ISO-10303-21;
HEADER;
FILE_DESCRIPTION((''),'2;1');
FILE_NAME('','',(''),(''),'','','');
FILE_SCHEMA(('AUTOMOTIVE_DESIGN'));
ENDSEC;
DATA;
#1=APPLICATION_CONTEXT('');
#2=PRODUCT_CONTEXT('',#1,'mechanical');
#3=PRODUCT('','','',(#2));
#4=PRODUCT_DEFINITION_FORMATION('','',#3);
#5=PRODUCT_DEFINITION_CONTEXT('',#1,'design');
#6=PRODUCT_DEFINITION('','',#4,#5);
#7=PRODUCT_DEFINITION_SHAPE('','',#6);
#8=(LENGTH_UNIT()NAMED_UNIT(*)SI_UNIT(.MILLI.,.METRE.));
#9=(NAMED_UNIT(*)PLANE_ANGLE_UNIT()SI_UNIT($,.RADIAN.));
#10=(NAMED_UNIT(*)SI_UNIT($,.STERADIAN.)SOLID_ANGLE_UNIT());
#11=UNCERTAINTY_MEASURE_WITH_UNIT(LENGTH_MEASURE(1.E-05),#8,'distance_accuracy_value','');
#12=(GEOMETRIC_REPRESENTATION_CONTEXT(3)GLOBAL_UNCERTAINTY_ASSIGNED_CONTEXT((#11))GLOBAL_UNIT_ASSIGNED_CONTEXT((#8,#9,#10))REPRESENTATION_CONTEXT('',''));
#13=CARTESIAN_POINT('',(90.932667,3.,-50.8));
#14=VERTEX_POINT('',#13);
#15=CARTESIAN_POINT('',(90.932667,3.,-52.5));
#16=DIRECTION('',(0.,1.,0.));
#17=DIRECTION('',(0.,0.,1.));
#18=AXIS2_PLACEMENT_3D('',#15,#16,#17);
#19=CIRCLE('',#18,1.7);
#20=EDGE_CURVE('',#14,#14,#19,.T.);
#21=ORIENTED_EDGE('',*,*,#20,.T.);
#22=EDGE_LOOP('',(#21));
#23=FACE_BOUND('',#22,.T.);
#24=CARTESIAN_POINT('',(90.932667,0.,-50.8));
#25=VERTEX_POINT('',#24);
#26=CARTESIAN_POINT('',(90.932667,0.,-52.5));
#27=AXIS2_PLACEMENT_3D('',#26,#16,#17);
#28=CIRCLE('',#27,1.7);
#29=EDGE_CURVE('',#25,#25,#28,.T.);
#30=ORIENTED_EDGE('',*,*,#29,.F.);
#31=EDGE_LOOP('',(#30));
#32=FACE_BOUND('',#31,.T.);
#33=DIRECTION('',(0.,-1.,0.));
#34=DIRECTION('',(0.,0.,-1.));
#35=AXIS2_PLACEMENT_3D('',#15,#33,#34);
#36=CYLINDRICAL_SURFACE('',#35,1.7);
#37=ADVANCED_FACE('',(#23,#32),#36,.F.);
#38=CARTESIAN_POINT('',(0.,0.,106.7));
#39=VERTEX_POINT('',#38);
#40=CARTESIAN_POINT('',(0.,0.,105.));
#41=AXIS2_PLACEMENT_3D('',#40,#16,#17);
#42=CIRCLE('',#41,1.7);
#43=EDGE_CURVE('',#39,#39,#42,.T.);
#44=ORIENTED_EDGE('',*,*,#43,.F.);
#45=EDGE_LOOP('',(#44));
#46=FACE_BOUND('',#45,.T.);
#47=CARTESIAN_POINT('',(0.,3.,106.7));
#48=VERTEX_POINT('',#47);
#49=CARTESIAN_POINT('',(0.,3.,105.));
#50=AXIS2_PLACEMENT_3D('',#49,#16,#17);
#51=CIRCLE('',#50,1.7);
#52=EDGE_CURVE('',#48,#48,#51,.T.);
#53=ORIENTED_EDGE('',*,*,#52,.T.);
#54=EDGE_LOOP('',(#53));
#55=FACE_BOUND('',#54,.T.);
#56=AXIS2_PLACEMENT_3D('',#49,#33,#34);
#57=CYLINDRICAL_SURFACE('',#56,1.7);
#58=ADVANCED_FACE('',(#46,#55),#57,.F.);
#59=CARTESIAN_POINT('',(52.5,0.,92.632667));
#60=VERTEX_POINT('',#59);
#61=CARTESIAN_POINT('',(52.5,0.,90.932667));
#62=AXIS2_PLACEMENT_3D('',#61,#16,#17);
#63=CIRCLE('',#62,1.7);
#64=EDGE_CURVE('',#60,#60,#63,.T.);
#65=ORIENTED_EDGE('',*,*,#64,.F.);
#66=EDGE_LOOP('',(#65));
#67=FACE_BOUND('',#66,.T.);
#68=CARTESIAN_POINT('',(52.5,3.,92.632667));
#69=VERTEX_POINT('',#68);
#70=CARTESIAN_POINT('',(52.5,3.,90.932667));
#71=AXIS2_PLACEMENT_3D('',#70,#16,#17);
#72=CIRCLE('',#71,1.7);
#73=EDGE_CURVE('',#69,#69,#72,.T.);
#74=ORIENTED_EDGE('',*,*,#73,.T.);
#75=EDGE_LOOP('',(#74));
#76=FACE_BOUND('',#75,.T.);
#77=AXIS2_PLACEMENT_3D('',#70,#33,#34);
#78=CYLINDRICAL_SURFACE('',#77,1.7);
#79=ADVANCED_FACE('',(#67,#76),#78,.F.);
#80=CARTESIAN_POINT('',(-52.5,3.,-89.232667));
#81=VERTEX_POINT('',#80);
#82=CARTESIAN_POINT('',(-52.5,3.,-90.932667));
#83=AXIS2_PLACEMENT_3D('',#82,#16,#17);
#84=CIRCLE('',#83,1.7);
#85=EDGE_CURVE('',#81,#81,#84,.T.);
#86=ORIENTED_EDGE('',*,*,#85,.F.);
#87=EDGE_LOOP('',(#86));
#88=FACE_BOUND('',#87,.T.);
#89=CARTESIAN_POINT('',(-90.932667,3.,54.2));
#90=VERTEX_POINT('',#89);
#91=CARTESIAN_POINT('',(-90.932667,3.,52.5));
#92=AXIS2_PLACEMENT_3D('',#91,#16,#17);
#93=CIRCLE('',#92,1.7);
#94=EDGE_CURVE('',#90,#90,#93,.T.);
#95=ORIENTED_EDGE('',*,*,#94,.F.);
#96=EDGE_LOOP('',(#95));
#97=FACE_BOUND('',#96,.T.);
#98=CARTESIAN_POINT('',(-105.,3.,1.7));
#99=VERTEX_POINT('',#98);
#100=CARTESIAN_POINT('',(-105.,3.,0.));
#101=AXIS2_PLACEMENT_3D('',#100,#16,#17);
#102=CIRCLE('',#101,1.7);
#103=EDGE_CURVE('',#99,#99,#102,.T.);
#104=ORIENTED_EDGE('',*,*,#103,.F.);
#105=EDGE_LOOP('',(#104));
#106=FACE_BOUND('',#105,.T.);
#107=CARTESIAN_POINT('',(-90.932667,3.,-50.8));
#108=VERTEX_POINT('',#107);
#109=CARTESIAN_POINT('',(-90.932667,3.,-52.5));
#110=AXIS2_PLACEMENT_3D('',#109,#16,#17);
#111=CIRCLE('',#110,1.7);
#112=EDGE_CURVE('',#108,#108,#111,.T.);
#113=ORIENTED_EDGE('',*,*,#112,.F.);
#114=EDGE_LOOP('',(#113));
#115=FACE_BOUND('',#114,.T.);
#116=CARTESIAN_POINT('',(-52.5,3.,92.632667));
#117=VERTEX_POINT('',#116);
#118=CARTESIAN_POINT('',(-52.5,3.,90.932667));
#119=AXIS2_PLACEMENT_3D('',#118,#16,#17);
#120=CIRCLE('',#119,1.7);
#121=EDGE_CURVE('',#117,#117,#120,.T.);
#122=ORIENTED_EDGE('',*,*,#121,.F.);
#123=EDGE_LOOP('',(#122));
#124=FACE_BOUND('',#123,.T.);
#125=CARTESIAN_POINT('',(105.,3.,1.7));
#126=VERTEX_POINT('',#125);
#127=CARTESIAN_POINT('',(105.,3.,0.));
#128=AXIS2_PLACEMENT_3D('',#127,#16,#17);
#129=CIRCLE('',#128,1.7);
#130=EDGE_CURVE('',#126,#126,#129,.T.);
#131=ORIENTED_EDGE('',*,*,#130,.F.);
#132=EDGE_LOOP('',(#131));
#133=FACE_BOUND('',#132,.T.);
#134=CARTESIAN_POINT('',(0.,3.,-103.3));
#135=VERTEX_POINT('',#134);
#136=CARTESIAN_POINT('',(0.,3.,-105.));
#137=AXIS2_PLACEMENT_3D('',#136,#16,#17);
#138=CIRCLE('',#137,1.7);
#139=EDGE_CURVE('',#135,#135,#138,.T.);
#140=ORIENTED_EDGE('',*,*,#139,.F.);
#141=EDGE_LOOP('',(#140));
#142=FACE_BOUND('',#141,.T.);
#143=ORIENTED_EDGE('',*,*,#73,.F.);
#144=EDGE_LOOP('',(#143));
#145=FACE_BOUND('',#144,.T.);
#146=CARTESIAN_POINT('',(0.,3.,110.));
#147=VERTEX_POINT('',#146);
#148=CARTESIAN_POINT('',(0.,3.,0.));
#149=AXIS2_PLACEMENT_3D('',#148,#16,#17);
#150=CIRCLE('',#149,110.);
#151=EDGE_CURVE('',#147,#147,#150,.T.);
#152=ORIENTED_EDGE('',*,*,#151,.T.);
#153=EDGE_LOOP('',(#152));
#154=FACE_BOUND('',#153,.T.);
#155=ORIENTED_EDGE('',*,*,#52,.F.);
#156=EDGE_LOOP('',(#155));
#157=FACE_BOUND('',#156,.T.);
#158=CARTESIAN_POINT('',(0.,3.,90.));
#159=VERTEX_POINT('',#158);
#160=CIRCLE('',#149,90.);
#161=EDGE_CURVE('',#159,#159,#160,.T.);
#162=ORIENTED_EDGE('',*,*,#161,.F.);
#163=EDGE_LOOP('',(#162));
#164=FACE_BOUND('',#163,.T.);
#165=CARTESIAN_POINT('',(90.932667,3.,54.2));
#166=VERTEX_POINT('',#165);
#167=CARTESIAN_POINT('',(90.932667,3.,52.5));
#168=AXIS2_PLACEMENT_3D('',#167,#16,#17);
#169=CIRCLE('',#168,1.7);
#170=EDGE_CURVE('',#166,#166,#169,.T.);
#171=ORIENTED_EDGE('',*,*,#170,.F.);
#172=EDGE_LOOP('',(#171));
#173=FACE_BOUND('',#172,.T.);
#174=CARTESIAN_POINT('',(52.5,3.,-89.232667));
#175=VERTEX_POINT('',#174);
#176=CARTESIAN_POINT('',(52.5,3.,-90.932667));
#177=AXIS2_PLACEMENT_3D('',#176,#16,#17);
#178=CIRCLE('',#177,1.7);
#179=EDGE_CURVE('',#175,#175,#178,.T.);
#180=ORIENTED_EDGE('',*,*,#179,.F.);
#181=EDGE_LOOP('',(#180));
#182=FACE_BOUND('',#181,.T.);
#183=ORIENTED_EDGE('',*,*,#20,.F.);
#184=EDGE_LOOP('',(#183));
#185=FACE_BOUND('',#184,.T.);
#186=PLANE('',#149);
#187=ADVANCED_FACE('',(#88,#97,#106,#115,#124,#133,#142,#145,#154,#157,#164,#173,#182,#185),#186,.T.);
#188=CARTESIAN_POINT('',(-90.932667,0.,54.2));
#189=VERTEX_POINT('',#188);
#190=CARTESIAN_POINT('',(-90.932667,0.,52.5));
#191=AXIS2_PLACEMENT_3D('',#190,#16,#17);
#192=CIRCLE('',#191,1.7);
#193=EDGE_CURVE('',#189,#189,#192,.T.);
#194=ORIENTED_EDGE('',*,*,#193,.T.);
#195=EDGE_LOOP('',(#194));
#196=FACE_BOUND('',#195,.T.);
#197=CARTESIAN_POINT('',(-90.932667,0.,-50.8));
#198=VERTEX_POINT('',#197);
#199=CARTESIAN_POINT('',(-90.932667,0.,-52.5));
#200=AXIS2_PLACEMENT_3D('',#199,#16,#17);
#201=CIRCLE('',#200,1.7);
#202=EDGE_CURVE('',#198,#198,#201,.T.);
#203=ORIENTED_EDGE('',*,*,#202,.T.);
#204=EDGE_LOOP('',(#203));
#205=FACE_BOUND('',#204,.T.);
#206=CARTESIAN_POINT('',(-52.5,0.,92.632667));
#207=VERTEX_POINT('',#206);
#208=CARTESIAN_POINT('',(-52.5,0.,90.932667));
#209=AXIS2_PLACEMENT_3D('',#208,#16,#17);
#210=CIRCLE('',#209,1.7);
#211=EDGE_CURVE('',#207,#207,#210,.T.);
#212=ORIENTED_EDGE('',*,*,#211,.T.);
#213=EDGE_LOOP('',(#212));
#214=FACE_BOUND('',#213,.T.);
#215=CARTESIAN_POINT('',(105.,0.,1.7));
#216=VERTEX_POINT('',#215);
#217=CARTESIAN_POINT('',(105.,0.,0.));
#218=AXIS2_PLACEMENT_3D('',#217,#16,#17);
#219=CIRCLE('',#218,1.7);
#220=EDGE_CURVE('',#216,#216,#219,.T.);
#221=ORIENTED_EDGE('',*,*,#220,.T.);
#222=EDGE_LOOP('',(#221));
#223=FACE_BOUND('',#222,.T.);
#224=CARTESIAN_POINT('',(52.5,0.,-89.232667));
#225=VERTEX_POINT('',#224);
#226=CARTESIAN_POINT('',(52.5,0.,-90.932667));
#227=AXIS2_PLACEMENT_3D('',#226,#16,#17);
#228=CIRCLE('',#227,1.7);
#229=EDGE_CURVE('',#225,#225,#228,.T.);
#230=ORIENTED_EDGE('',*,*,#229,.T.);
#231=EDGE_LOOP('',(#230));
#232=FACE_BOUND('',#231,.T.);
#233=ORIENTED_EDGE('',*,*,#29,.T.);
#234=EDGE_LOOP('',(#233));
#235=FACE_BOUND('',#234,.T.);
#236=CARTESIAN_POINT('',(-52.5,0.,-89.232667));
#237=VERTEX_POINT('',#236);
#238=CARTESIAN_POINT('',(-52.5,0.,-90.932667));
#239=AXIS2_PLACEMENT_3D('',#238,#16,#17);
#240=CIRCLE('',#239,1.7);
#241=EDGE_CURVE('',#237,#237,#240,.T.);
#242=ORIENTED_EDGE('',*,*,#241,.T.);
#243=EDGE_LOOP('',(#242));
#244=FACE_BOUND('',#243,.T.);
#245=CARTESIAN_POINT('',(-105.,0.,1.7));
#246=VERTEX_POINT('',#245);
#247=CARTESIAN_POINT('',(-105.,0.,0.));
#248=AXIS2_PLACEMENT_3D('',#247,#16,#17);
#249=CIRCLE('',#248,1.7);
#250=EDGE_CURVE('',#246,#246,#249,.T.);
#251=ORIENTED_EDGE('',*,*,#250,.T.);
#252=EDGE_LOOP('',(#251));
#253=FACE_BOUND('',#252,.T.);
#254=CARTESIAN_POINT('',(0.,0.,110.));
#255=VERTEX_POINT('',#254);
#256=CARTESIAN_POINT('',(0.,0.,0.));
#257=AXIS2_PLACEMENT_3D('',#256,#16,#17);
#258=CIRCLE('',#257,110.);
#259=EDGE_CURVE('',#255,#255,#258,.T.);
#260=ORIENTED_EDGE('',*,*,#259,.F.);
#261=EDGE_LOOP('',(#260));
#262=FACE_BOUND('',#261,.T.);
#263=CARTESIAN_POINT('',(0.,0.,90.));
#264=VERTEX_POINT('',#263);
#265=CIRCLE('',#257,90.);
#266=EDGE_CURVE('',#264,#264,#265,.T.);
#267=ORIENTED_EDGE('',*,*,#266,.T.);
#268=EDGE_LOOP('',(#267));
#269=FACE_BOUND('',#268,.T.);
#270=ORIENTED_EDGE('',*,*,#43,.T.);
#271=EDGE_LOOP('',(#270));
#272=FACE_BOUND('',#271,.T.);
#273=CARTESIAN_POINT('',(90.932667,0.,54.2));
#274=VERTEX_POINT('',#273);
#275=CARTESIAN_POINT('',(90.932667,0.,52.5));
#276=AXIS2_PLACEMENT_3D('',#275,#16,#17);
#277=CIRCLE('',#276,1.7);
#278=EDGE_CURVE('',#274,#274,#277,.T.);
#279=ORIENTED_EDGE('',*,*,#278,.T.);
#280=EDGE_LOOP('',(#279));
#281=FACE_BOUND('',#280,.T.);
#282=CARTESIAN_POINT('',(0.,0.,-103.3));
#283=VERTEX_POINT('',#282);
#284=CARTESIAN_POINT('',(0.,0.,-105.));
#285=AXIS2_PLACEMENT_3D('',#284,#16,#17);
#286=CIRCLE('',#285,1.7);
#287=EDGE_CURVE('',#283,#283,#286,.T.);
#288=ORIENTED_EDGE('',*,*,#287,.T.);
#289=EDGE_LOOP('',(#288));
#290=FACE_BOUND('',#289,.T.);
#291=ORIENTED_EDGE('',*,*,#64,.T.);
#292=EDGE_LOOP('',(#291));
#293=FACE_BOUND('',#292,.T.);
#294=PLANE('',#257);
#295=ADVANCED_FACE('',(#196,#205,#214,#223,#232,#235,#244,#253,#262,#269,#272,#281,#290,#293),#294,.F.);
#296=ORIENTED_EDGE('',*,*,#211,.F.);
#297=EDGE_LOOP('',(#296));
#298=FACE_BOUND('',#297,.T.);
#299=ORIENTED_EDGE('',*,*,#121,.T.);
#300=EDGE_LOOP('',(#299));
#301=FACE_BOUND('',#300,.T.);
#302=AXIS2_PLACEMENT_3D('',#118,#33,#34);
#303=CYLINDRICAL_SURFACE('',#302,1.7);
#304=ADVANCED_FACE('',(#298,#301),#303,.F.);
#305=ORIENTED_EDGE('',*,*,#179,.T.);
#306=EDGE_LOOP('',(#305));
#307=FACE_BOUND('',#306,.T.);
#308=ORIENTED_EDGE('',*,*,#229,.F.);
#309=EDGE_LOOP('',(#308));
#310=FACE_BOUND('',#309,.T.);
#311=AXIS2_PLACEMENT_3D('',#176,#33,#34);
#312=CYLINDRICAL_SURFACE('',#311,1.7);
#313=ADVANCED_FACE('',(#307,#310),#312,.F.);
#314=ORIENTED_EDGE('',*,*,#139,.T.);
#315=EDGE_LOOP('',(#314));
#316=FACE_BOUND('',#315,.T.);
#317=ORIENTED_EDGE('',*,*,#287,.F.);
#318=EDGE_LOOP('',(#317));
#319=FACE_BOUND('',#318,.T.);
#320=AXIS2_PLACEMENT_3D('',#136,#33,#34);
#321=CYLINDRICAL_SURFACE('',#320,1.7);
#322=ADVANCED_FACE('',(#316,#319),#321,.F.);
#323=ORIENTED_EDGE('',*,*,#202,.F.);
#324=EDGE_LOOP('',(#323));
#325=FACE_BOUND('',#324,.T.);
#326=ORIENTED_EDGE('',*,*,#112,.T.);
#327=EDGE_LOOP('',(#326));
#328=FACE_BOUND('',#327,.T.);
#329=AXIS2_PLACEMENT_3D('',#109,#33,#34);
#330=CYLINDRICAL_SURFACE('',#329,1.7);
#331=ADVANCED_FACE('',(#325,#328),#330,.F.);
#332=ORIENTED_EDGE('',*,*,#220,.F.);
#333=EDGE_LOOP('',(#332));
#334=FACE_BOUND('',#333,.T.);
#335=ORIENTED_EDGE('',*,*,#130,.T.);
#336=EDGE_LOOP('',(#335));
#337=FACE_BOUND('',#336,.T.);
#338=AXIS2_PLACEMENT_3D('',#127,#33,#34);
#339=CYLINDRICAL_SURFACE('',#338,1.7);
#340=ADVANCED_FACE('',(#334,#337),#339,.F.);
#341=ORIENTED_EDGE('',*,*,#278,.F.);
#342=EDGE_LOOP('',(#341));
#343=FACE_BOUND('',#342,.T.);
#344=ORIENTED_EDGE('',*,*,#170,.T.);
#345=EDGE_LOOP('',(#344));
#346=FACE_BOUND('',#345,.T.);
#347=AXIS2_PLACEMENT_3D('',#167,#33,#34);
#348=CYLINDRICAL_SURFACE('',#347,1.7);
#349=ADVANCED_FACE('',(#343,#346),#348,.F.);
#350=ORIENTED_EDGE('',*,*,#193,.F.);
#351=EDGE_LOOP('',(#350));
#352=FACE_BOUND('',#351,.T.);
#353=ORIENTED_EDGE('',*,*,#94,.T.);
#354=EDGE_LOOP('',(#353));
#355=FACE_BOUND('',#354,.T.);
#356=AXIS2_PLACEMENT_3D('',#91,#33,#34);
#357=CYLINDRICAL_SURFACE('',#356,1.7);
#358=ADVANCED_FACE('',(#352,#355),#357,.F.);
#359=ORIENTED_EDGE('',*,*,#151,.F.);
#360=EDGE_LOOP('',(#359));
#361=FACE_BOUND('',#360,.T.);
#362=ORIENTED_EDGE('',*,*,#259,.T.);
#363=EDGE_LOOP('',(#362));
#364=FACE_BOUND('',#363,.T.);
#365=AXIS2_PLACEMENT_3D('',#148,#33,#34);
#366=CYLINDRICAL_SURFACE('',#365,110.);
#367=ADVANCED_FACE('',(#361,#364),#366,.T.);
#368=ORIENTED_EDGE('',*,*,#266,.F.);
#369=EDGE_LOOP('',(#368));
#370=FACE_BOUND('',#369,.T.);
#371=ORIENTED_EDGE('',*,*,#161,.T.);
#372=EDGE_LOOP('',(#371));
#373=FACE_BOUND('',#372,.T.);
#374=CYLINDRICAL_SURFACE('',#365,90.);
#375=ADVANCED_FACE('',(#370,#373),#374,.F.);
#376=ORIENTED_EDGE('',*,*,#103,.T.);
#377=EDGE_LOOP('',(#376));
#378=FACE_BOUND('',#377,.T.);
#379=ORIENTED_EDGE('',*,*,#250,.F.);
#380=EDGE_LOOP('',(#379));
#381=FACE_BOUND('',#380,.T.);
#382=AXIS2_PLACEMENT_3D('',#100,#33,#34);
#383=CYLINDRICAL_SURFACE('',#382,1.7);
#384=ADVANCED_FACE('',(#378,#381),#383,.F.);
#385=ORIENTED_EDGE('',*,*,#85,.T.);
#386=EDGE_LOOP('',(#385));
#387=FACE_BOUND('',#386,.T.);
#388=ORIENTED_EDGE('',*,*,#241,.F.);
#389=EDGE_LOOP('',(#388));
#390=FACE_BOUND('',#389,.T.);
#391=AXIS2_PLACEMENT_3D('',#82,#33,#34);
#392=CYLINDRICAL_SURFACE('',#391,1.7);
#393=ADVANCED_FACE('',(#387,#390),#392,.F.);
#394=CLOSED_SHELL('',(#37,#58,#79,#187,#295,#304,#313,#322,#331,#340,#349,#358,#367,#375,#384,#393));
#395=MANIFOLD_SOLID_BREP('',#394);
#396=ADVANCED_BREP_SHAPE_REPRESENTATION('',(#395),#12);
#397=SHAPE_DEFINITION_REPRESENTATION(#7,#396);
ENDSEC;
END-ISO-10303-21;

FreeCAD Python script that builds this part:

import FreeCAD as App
import Part
import Sketcher

V = App.Vector
Q = App.Units.Quantity

doc = App.newDocument("Part")
body = doc.addObject("PartDesign::Body", "Body")

sketch1 = body.newObject("Sketcher::SketchObject", "Sketch")
sketch1.AttachmentSupport = (doc.getObject("XZ_Plane"), [""])
sketch1.MapMode = "FlatFace"
sketch1.addGeometry([
    Part.Circle(V(0, 0, 0), V(0, 0, 1), 110),
    Part.Circle(V(-52.5, 90.932667, 0), V(0, 0, 1), 1.7),
    Part.Circle(V(-90.932667, 52.5, 0), V(0, 0, 1), 1.7),
    Part.Circle(V(0, 105, 0), V(0, 0, 1), 1.7),
    Part.Circle(V(52.5, 90.932667, 0), V(0, 0, 1), 1.7),
    Part.Circle(V(90.932667, 52.5, 0), V(0, 0, 1), 1.7),
    Part.Circle(V(-105, 0, 0), V(0, 0, 1), 1.7),
    Part.Circle(V(-90.932667, -52.5, 0), V(0, 0, 1), 1.7),
    Part.Circle(V(-52.5, -90.932667, 0), V(0, 0, 1), 1.7),
    Part.Circle(V(0, 0, 0), V(0, 0, 1), 90),
    Part.Circle(V(105, 0, 0), V(0, 0, 1), 1.7),
    Part.Circle(V(90.932667, -52.5, 0), V(0, 0, 1), 1.7),
    Part.Circle(V(0, -105, 0), V(0, 0, 1), 1.7),
    Part.Circle(V(52.5, -90.932667, 0), V(0, 0, 1), 1.7),
], False)
sketch1.addConstraint([
    Sketcher.Constraint("Coincident", 0, 3, -1, 1),
    Sketcher.Constraint("Coincident", 9, 3, -1, 1),
    Sketcher.Constraint("Equal", 1, 2),
    Sketcher.Constraint("Equal", 2, 3),
    Sketcher.Constraint("Equal", 3, 4),
    Sketcher.Constraint("Equal", 4, 5),
    Sketcher.Constraint("Equal", 5, 6),
    Sketcher.Constraint("Equal", 6, 7),
    Sketcher.Constraint("Equal", 7, 8),
    Sketcher.Constraint("Equal", 8, 10),
    Sketcher.Constraint("Equal", 10, 11),
    Sketcher.Constraint("Equal", 11, 12),
    Sketcher.Constraint("Equal", 12, 13),
    Sketcher.Constraint("Symmetric", 5, 3, 7, 3, -1, 1),
    Sketcher.Constraint("Symmetric", 4, 3, 8, 3, -1, 1),
    Sketcher.Constraint("Symmetric", 6, 3, 10, 3, -1, 1),
    Sketcher.Constraint("Symmetric", 2, 3, 11, 3, -1, 1),
    Sketcher.Constraint("Symmetric", 3, 3, 12, 3, -1, 1),
    Sketcher.Constraint("Symmetric", 1, 3, 13, 3, -1, 1),
    Sketcher.Constraint("Symmetric", 1, 3, 4, 3, -2),
    Sketcher.Constraint("Symmetric", 2, 3, 5, 3, -2),
    Sketcher.Constraint("PointOnObject", 3, 3, -2),
    Sketcher.Constraint("PointOnObject", 6, 3, -1),
    Sketcher.Constraint("Diameter", 0, Q("220 mm")),
    Sketcher.Constraint("Diameter", 9, Q("180 mm")),
    Sketcher.Constraint("Diameter", 1, Q("3.4 mm")),
    Sketcher.Constraint("DistanceY", -1, 1, 3, 3, Q("105 mm")),
    Sketcher.Constraint("DistanceX", 6, 3, -1, 1, Q("105 mm")),
    Sketcher.Constraint("DistanceX", 1, 3, 4, 3, Q("105 mm")),
    Sketcher.Constraint("DistanceY", 7, 3, 2, 3, Q("105 mm")),
    Sketcher.Constraint("DistanceY", -1, 1, 1, 3, Q("90.932667 mm")),
    Sketcher.Constraint("DistanceX", 2, 3, -1, 1, Q("90.932667 mm")),
])
pad1 = body.newObject("PartDesign::Pad", "Pad")
pad1.Profile = sketch1
pad1.Length = 3
pad1.Reversed = True

doc.recompute()
